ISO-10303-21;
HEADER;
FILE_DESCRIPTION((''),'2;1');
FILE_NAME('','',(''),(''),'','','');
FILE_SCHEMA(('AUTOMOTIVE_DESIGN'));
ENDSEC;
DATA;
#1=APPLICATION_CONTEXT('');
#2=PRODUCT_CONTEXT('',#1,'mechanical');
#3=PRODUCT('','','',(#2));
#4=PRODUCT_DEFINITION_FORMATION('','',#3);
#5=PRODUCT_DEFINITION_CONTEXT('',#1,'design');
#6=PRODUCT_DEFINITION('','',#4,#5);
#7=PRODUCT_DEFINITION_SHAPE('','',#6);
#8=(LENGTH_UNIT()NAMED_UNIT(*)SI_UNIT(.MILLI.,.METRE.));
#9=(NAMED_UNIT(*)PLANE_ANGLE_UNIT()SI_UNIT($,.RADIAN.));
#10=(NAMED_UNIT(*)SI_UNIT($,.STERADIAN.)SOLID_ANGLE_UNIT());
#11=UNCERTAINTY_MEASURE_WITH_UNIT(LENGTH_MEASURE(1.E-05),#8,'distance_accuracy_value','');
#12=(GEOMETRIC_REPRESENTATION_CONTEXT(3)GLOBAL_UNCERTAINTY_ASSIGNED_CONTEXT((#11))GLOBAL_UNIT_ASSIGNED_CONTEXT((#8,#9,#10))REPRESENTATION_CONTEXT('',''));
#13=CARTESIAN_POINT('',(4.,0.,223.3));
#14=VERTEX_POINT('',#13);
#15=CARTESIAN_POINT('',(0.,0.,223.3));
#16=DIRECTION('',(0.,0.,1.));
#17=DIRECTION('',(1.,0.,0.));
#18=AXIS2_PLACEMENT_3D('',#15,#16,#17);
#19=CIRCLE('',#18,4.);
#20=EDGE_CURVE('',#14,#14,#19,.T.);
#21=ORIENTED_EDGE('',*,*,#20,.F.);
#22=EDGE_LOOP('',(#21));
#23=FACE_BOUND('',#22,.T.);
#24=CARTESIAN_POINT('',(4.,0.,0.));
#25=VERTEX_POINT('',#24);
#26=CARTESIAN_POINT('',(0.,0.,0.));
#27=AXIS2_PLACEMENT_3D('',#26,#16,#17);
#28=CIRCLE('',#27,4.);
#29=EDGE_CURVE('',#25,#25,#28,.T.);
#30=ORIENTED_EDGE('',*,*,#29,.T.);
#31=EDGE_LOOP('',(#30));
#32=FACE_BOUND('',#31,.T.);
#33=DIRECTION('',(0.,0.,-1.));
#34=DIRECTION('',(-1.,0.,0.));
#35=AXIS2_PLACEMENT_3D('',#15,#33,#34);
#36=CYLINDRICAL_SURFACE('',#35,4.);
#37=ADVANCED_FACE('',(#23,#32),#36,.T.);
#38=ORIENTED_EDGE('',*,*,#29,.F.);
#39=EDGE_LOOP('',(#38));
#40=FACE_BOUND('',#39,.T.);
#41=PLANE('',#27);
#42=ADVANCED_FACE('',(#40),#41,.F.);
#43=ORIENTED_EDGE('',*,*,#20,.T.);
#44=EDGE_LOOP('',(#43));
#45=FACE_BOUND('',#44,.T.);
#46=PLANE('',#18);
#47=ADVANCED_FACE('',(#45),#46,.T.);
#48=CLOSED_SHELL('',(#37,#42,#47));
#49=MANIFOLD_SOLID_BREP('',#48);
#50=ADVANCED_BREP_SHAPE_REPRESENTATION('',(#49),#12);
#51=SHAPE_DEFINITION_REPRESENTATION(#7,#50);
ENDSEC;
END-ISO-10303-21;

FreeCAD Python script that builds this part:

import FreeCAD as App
import Part
import Sketcher
from FreeCAD import Vector

doc = App.newDocument("Part")
body = doc.addObject("PartDesign::Body", "Body")

# Sketch on XY plane
sketch1 = doc.addObject("Sketcher::SketchObject", "Sketch")
body.addObject(sketch1)
sketch1.AttachmentSupport = (doc.XY_Plane, [""])
sketch1.MapMode = "FlatFace"
sketch1.addGeometry(Part.Circle(Vector(0, 0, 0), Vector(0, 0, 1), 4), False)
sketch1.addConstraint([
    Sketcher.Constraint("Coincident", 0, 3, -1, 1),
    Sketcher.Constraint("Diameter", 0, 8.0),
])
pad1 = doc.addObject("PartDesign::Pad", "Pad")
body.addObject(pad1)
pad1.Profile = sketch1
pad1.Length = 223.3

doc.recompute()
